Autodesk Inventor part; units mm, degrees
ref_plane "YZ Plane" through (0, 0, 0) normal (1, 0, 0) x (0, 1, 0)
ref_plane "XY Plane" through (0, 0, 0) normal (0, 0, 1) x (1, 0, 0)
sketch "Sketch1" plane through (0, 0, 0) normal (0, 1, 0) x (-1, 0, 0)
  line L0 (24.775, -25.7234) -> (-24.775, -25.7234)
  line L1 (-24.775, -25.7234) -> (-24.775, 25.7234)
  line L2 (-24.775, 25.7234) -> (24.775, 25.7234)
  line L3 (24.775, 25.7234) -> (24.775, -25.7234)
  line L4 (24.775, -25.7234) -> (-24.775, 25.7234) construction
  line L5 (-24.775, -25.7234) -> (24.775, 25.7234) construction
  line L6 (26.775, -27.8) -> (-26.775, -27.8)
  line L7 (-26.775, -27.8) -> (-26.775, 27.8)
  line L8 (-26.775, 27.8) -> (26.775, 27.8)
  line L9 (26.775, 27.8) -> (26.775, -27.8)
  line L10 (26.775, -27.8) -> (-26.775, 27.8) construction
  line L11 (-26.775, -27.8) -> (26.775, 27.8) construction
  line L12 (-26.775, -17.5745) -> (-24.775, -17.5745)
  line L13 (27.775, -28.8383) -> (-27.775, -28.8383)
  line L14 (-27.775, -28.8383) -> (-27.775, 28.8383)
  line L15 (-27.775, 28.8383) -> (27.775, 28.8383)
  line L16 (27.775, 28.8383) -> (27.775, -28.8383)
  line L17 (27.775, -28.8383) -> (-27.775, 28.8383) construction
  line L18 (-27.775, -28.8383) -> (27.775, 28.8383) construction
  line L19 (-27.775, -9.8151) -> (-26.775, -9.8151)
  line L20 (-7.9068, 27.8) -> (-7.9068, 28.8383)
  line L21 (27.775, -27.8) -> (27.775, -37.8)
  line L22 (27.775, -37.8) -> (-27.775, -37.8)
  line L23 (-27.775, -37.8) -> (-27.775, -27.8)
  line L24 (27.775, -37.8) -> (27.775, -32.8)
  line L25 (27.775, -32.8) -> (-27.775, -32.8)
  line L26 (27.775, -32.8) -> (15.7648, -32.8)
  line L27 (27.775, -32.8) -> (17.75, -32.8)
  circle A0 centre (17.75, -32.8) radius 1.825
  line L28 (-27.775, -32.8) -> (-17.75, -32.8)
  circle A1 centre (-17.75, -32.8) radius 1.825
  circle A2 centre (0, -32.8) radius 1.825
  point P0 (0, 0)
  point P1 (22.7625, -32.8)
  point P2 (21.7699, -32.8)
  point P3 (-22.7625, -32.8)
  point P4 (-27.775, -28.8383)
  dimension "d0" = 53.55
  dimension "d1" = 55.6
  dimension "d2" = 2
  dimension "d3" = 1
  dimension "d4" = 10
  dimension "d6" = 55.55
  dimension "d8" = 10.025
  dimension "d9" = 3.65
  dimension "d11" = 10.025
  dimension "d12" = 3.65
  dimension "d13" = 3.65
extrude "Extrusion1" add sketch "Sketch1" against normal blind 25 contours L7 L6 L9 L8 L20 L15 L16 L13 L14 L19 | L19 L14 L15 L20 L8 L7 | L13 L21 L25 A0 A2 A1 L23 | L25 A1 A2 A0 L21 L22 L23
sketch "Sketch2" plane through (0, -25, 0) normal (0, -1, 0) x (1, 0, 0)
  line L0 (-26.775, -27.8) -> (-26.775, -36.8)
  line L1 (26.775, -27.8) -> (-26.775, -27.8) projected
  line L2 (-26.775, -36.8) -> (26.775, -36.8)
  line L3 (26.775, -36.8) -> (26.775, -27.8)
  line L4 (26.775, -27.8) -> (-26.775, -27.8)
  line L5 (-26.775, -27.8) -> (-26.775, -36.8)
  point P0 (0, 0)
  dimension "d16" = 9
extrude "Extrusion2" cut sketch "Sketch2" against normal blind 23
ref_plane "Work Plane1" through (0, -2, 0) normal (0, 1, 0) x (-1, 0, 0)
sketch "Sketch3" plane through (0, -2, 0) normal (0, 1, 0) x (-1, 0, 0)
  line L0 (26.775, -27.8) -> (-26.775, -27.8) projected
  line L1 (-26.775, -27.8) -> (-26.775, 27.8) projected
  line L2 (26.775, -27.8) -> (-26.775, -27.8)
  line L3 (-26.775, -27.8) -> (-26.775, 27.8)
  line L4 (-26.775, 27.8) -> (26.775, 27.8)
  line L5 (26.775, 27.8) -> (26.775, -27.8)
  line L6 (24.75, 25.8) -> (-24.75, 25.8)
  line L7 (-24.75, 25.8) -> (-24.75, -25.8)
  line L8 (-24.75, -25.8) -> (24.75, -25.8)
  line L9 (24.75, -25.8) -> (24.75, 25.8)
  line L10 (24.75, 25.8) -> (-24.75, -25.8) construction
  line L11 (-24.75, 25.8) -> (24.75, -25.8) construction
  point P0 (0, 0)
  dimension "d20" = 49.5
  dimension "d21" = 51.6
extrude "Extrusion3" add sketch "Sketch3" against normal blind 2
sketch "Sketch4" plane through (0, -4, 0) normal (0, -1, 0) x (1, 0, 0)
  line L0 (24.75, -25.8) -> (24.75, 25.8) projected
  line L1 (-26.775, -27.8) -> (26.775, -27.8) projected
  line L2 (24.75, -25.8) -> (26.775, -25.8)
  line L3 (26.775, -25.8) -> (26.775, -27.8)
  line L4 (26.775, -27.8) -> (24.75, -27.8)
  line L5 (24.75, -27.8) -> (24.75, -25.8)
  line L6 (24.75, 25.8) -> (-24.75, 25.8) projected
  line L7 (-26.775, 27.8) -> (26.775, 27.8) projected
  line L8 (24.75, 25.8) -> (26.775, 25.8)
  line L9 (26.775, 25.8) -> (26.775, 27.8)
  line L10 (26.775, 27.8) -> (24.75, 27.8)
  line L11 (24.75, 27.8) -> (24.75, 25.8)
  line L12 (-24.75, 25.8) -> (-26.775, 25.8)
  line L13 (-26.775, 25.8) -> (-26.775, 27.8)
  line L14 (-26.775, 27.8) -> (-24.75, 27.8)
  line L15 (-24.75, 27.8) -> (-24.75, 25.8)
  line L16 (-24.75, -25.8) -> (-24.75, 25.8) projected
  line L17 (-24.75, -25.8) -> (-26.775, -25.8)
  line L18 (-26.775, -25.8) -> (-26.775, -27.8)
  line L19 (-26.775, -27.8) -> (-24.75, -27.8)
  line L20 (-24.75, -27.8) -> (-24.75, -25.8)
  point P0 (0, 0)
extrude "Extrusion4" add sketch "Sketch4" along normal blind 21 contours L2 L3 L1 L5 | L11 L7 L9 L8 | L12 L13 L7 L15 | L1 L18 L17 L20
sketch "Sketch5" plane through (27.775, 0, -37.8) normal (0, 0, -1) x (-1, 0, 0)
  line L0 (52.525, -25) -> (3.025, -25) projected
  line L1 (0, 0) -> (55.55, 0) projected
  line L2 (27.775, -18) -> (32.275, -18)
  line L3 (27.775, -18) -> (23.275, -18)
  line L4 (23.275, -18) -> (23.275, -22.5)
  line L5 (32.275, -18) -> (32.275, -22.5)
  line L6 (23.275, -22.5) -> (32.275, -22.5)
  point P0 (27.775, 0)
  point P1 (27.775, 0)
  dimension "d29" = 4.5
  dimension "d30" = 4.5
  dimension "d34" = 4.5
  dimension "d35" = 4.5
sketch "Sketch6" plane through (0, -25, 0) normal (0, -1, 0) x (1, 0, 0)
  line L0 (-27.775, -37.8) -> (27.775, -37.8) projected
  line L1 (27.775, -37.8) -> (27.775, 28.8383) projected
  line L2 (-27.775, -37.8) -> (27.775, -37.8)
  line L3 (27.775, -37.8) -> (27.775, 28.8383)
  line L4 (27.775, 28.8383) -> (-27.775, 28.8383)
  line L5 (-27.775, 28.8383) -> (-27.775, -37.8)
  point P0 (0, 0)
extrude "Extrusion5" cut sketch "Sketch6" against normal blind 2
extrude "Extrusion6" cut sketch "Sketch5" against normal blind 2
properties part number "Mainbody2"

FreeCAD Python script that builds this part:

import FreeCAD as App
import Part
import Sketcher
from FreeCAD import Vector


def add_polygon(sketch, points):
    """Adds a closed chain of lines whose ends are joined by coincident constraints."""
    first, n = sketch.GeometryCount, len(points)
    for a, b in zip(points, points[1:] + points[:1]):
        sketch.addGeometry(Part.LineSegment(App.Vector(*a, 0), App.Vector(*b, 0)), False)
    for i in range(n):
        sketch.addConstraint(Sketcher.Constraint("Coincident", first + i, 2, first + (i + 1) % n, 1))

doc = App.newDocument("Part")
body = doc.addObject("PartDesign::Body", "Body")

sketch1 = body.newObject("Sketcher::SketchObject", "Sketch")
sketch1.AttachmentSupport = (doc.getObject("XZ_Plane"), [""])
sketch1.MapMode = "FlatFace"
add_polygon(sketch1, [(-27.8, 28.8), (27.8, 28.8), (27.8, -37.8), (-27.8, -37.8)])
add_polygon(sketch1, [(26.8, -27.8), (26.8, 27.8), (-26.8, 27.8), (-26.8, -27.8)])
sketch1.addGeometry(Part.Circle(Vector(-17.8, -32.8, 0), Vector(0, 0, 1), 1.8), False)
sketch1.addGeometry(Part.Circle(Vector(0, -32.8, 0), Vector(0, 0, 1), 1.8), False)
sketch1.addGeometry(Part.Circle(Vector(17.8, -32.8, 0), Vector(0, 0, 1), 1.8), False)
sketch1.addConstraint([
    Sketcher.Constraint("Horizontal", 0),
    Sketcher.Constraint("Vertical", 1),
    Sketcher.Constraint("Horizontal", 2),
    Sketcher.Constraint("Vertical", 3),
    Sketcher.Constraint("Vertical", 4),
    Sketcher.Constraint("Horizontal", 5),
    Sketcher.Constraint("Vertical", 6),
    Sketcher.Constraint("Horizontal", 7),
    Sketcher.Constraint("Equal", 8, 9),
    Sketcher.Constraint("Equal", 9, 10),
    Sketcher.Constraint("Symmetric", 4, 2, 6, 2, -1, 1),
    Sketcher.Constraint("Symmetric", 8, 3, 10, 3, -2),
    Sketcher.Constraint("PointOnObject", 9, 3, -2),
    Sketcher.Constraint("Horizontal", 8, 3, 9, 3),
    Sketcher.Constraint("Diameter", 8, 3.65),
    Sketcher.Constraint("DistanceY", 4, 1, 4, 2, 55.6),
    Sketcher.Constraint("DistanceX", 4, 2, 0, 2, 1.0),
    Sketcher.Constraint("DistanceX", 3, 2, 5, 2, 1.0),
    Sketcher.Constraint("DistanceY", 2, 2, 6, 2, 10.0),
    Sketcher.Constraint("DistanceX", 0, 1, 0, 2, 55.55),
    Sketcher.Constraint("DistanceX", 10, 3, 0, 2, 10.025),
    Sketcher.Constraint("DistanceY", 1, 2, 10, 3, 5.0),
    Sketcher.Constraint("DistanceY", 1, 2, 1, 1, 66.6383),
])
pad1 = body.newObject("PartDesign::Pad", "Pad")
pad1.Profile = sketch1
pad1.Length = 25

sketch2 = body.newObject("Sketcher::SketchObject", "Sketch001")
sketch2.AttachmentSupport = (doc.getObject("XZ_Plane"), [""])
sketch2.MapMode = "FlatFace"
sketch2.AttachmentOffset = App.Placement(Vector(0, 0, 25), App.Rotation())
add_polygon(sketch2, [(27, -28), (-27, -28), (-27, -37), (27, -37)])
sketch2.addConstraint([
    Sketcher.Constraint("Horizontal", 0),
    Sketcher.Constraint("Vertical", 1),
    Sketcher.Constraint("Horizontal", 2),
    Sketcher.Constraint("Vertical", 3),
    Sketcher.Constraint("DistanceY", 1, 2, 1, 1, 9.0),
    Sketcher.Constraint("DistanceX", 0, 2, 0, 1, 53.55),
    Sketcher.Constraint("DistanceY", 0, 2, -1, 1, 27.8),
    Sketcher.Constraint("DistanceX", 0, 2, -1, 1, 26.775),
])
pocket1 = body.newObject("PartDesign::Pocket", "Pocket")
pocket1.Profile = sketch2
pocket1.Length = 23

sketch3 = body.newObject("Sketcher::SketchObject", "Sketch002")
sketch3.AttachmentSupport = (doc.getObject("XZ_Plane"), [""])
sketch3.MapMode = "FlatFace"
sketch3.AttachmentOffset = App.Placement(Vector(0, 0, 2), App.Rotation())
add_polygon(sketch3, [(27, -28), (-27, -28), (-27, 28), (27, 28)])
add_polygon(sketch3, [(25, 26), (-25, 26), (-25, -26), (25, -26)])
sketch3.addConstraint([
    Sketcher.Constraint("Horizontal", 0),
    Sketcher.Constraint("Vertical", 1),
    Sketcher.Constraint("Horizontal", 2),
    Sketcher.Constraint("Vertical", 3),
    Sketcher.Constraint("Horizontal", 4),
    Sketcher.Constraint("Vertical", 5),
    Sketcher.Constraint("Horizontal", 6),
    Sketcher.Constraint("Vertical", 7),
    Sketcher.Constraint("Symmetric", 0, 2, 2, 2, -1, 1),
    Sketcher.Constraint("Symmetric", 4, 2, 6, 2, -1, 1),
    Sketcher.Constraint("DistanceX", 4, 2, 4, 1, 49.5),
    Sketcher.Constraint("DistanceY", 5, 2, 5, 1, 51.6),
    Sketcher.Constraint("DistanceY", 1, 1, 1, 2, 55.6),
    Sketcher.Constraint("DistanceX", 0, 2, 0, 1, 53.55),
])
pad2 = body.newObject("PartDesign::Pad", "Pad001")
pad2.Profile = sketch3
pad2.Length = 2

sketch4 = body.newObject("Sketcher::SketchObject", "Sketch003")
sketch4.AttachmentSupport = (doc.getObject("XZ_Plane"), [""])
sketch4.MapMode = "FlatFace"
sketch4.AttachmentOffset = App.Placement(Vector(0, 0, 4), App.Rotation())
add_polygon(sketch4, [(26.8, -25.8), (24.8, -25.8), (24.8, -27.8), (26.8, -27.8)])
add_polygon(sketch4, [(24.8, 27.8), (24.8, 25.8), (26.8, 25.8), (26.8, 27.8)])
add_polygon(sketch4, [(-26.8, 25.8), (-24.8, 25.8), (-24.8, 27.8), (-26.8, 27.8)])
add_polygon(sketch4, [(-26.8, -27.8), (-24.8, -27.8), (-24.8, -25.8), (-26.8, -25.8)])
sketch4.addConstraint([
    Sketcher.Constraint("Horizontal", 0),
    Sketcher.Constraint("Vertical", 1),
    Sketcher.Constraint("Horizontal", 2),
    Sketcher.Constraint("Vertical", 3),
    Sketcher.Constraint("Vertical", 4),
    Sketcher.Constraint("Horizontal", 5),
    Sketcher.Constraint("Vertical", 6),
    Sketcher.Constraint("Horizontal", 7),
    Sketcher.Constraint("Horizontal", 8),
    Sketcher.Constraint("Vertical", 9),
    Sketcher.Constraint("Horizontal", 10),
    Sketcher.Constraint("Vertical", 11),
    Sketcher.Constraint("Horizontal", 12),
    Sketcher.Constraint("Vertical", 13),
    Sketcher.Constraint("Horizontal", 14),
    Sketcher.Constraint("Vertical", 15),
    Sketcher.Constraint("Symmetric", 0, 2, 8, 2, -1, 1),
    Sketcher.Constraint("Symmetric", 2, 2, 10, 2, -1, 1),
    Sketcher.Constraint("Symmetric", 7, 2, 12, 2, -1, 1),
    Sketcher.Constraint("Symmetric", 5, 2, 14, 2, -1, 1),
    Sketcher.Constraint("Symmetric", 4, 2, 8, 2, -2),
    Sketcher.Constraint("Symmetric", 6, 2, 10, 2, -2),
    Sketcher.Constraint("DistanceY", 1, 2, 1, 1, 2.0),
    Sketcher.Constraint("DistanceY", 0, 2, -1, 1, 25.8),
    Sketcher.Constraint("DistanceX", 8, 2, 4, 2, 49.5),
    Sketcher.Constraint("DistanceX", 0, 2, 0, 1, 2.025),
])
pad3 = body.newObject("PartDesign::Pad", "Pad002")
pad3.Profile = sketch4
pad3.Length = 21

sketch5 = body.newObject("Sketcher::SketchObject", "Sketch004")
sketch5.AttachmentSupport = (doc.getObject("XZ_Plane"), [""])
sketch5.MapMode = "FlatFace"
sketch5.AttachmentOffset = App.Placement(Vector(0, 0, 25), App.Rotation())
add_polygon(sketch5, [(-28, 29), (-28, -38), (28, -38), (28, 29)])
sketch5.addConstraint([
    Sketcher.Constraint("Vertical", 0),
    Sketcher.Constraint("Horizontal", 1),
    Sketcher.Constraint("Vertical", 2),
    Sketcher.Constraint("Horizontal", 3),
    Sketcher.Constraint("DistanceX", 1, 1, 1, 2, 55.55),
    Sketcher.Constraint("DistanceY", 0, 2, -1, 1, 37.8),
    Sketcher.Constraint("DistanceY", 0, 2, 0, 1, 66.6383),
    Sketcher.Constraint("DistanceX", 0, 2, -1, 1, 27.775),
])
pocket2 = body.newObject("PartDesign::Pocket", "Pocket001")
pocket2.Profile = sketch5
pocket2.Length = 2

sketch6 = body.newObject("Sketcher::SketchObject", "Sketch005")
sketch6.AttachmentSupport = (doc.getObject("XY_Plane"), [""])
sketch6.MapMode = "FlatFace"
sketch6.AttachmentOffset = App.Placement(Vector(0, 0, -37.8), App.Rotation())
add_polygon(sketch6, [(-4.5, -18), (4.5, -18), (4.5, -22.5), (-4.5, -22.5)])
sketch6.addConstraint([
    Sketcher.Constraint("Horizontal", 0),
    Sketcher.Constraint("Vertical", 1),
    Sketcher.Constraint("Horizontal", 2),
    Sketcher.Constraint("Vertical", 3),
    Sketcher.Constraint("DistanceY", 1, 2, 1, 1, 4.5),
    Sketcher.Constraint("DistanceX", -1, 1, 0, 2, 4.5),
    Sketcher.Constraint("DistanceX", 2, 2, -1, 1, 4.5),
    Sketcher.Constraint("DistanceY", 0, 2, -1, 1, 18.0),
])
pocket3 = body.newObject("PartDesign::Pocket", "Pocket002")
pocket3.Profile = sketch6
pocket3.Length = 2
pocket3.Reversed = True

doc.recompute()
